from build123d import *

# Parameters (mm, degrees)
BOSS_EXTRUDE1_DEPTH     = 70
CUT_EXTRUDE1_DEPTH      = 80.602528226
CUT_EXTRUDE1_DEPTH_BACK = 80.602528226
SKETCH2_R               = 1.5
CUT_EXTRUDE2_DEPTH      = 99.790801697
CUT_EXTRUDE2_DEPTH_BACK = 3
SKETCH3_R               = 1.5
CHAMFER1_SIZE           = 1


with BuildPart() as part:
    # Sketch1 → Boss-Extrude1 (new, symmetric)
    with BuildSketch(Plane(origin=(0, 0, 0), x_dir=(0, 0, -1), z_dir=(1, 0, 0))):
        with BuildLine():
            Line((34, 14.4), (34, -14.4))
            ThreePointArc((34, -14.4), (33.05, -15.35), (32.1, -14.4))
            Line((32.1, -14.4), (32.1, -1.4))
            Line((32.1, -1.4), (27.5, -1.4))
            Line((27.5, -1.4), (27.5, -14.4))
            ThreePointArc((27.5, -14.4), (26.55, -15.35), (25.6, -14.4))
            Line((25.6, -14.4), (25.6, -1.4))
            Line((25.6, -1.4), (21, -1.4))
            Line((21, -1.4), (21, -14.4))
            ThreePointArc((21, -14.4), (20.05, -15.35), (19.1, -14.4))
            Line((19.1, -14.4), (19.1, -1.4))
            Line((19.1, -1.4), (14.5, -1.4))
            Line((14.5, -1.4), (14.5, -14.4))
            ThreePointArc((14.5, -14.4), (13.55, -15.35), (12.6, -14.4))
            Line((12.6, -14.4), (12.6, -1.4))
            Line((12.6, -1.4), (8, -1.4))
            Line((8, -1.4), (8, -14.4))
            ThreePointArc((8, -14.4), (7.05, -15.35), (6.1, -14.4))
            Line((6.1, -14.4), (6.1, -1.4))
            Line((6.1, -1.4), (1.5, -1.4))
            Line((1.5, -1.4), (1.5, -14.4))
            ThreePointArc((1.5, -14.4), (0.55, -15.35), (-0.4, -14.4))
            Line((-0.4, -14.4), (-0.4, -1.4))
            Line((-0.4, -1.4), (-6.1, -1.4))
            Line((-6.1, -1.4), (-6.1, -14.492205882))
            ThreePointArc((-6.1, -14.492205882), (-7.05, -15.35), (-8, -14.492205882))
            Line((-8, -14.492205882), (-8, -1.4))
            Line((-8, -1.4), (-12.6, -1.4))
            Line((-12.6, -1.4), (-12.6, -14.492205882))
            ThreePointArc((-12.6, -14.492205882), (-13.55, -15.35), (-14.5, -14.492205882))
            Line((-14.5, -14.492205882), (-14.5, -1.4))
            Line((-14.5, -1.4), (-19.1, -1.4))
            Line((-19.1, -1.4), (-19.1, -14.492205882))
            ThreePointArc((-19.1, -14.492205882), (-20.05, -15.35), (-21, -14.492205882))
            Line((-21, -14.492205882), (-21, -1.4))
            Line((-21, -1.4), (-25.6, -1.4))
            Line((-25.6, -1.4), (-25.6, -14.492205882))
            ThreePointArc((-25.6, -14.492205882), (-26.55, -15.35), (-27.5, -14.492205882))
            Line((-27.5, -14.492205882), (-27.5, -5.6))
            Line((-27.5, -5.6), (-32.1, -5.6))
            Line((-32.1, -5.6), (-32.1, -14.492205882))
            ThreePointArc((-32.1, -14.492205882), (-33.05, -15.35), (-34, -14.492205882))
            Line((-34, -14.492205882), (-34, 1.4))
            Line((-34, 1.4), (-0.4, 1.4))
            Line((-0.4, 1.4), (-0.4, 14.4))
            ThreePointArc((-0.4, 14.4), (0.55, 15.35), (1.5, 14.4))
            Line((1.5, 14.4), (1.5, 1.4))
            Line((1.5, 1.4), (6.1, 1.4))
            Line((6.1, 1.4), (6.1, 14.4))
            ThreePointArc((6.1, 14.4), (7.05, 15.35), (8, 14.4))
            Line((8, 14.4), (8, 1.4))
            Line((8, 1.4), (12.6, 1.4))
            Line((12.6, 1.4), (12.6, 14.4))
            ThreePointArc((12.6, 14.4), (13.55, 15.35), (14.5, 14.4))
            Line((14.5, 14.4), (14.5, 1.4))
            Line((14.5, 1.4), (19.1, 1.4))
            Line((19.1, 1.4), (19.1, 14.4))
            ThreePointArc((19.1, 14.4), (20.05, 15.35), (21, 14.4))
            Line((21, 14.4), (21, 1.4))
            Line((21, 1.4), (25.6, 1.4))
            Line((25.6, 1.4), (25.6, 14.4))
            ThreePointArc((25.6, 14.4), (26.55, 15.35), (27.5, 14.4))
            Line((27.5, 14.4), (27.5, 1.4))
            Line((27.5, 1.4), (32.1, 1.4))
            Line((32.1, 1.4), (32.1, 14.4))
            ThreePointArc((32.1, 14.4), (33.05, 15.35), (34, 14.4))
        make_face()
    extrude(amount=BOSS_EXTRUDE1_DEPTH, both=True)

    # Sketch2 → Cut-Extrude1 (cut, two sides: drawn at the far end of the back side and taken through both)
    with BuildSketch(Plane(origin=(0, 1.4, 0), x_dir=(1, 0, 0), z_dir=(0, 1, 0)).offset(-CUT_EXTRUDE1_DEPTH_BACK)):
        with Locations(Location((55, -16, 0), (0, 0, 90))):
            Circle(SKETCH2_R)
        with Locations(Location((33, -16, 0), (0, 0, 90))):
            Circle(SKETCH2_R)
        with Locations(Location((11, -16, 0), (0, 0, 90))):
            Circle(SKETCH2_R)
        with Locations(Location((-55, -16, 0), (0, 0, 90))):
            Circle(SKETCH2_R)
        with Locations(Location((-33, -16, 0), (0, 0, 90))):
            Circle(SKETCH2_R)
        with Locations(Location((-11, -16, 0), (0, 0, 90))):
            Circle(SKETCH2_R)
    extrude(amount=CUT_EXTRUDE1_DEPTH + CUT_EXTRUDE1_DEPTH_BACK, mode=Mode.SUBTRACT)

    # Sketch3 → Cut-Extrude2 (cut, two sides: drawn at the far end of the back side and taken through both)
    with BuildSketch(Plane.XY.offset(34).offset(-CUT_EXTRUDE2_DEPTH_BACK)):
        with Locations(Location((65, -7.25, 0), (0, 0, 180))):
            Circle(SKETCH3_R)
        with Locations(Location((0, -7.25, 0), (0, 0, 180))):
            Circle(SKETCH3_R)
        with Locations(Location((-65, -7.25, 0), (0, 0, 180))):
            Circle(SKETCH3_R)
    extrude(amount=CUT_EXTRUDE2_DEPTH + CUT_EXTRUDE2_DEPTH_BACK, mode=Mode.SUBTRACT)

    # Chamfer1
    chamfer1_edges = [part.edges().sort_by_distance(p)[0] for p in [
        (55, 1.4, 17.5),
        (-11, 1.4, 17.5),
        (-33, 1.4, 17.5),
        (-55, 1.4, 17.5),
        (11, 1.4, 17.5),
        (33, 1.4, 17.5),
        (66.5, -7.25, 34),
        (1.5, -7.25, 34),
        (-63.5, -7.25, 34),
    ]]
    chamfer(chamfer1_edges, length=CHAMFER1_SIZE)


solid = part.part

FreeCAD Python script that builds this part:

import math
import FreeCAD as App
import Part
import Sketcher
from FreeCAD import Vector
Q = App.Units.Quantity


def edges_at(feature, points):
    """Names of the edges that pass closest to the given points."""
    edges = feature.Shape.Edges
    near = lambda p: min(range(len(edges)), key=lambda i: edges[i].distToShape(Part.Vertex(*p))[0])
    return sorted({f"Edge{near(p) + 1}" for p in points})

doc = App.newDocument("Part")
body = doc.addObject("PartDesign::Body", "Body")

sketch1 = doc.addObject("Sketcher::SketchObject", "Sketch")
body.addObject(sketch1)
sketch1.AttachmentSupport = (doc.YZ_Plane, [""])
sketch1.MapMode = "FlatFace"
sketch1.addGeometry(Part.LineSegment(Vector(-14.4, -34, 0), Vector(14.4, -34, 0)), False)
sketch1.addGeometry(Part.ArcOfCircle(Part.Circle(Vector(14.4, -33, 0), Vector(0, 0, 1), 0.9), math.radians(-90), math.radians(90)), False)
sketch1.addGeometry(Part.LineSegment(Vector(14.4, -32.1, 0), Vector(1.4, -32.1, 0)), False)
sketch1.addGeometry(Part.LineSegment(Vector(1.4, -32.1, 0), Vector(1.4, -27.5, 0)), False)
sketch1.addGeometry(Part.LineSegment(Vector(1.4, -27.5, 0), Vector(14.4, -27.5, 0)), False)
sketch1.addGeometry(Part.ArcOfCircle(Part.Circle(Vector(14.4, -26.6, 0), Vector(0, 0, 1), 0.9), math.radians(-90), math.radians(90)), False)
sketch1.addGeometry(Part.LineSegment(Vector(14.4, -25.6, 0), Vector(1.4, -25.6, 0)), False)
sketch1.addGeometry(Part.LineSegment(Vector(1.4, -25.6, 0), Vector(1.4, -21, 0)), False)
sketch1.addGeometry(Part.LineSegment(Vector(1.4, -21, 0), Vector(14.4, -21, 0)), False)
sketch1.addGeometry(Part.ArcOfCircle(Part.Circle(Vector(14.4, -20.1, 0), Vector(0, 0, 1), 0.9), math.radians(-90), math.radians(90)), False)
sketch1.addGeometry(Part.LineSegment(Vector(14.4, -19.1, 0), Vector(1.4, -19.1, 0)), False)
sketch1.addGeometry(Part.LineSegment(Vector(1.4, -19.1, 0), Vector(1.4, -14.5, 0)), False)
sketch1.addGeometry(Part.LineSegment(Vector(1.4, -14.5, 0), Vector(14.4, -14.5, 0)), False)
sketch1.addGeometry(Part.ArcOfCircle(Part.Circle(Vector(14.4, -13.6, 0), Vector(0, 0, 1), 0.9), math.radians(-90), math.radians(90)), False)
sketch1.addGeometry(Part.LineSegment(Vector(14.4, -12.6, 0), Vector(1.4, -12.6, 0)), False)
sketch1.addGeometry(Part.LineSegment(Vector(1.4, -12.6, 0), Vector(1.4, -8, 0)), False)
sketch1.addGeometry(Part.LineSegment(Vector(1.4, -8, 0), Vector(14.4, -8, 0)), False)
sketch1.addGeometry(Part.ArcOfCircle(Part.Circle(Vector(14.4, -7, 0), Vector(0, 0, 1), 0.9), math.radians(-90), math.radians(90)), False)
sketch1.addGeometry(Part.LineSegment(Vector(14.4, -6.1, 0), Vector(1.4, -6.1, 0)), False)
sketch1.addGeometry(Part.LineSegment(Vector(1.4, -6.1, 0), Vector(1.4, -1.5, 0)), False)
sketch1.addGeometry(Part.LineSegment(Vector(1.4, -1.5, 0), Vector(14.4, -1.5, 0)), False)
sketch1.addGeometry(Part.ArcOfCircle(Part.Circle(Vector(14.4, -0.6, 0), Vector(0, 0, 1), 0.9), math.radians(-90), math.radians(90)), False)
sketch1.addGeometry(Part.LineSegment(Vector(14.4, 0.4, 0), Vector(1.4, 0.4, 0)), False)
sketch1.addGeometry(Part.LineSegment(Vector(1.4, 0.4, 0), Vector(1.4, 34, 0)), False)
sketch1.addGeometry(Part.LineSegment(Vector(1.4, 34, 0), Vector(-14.5, 34, 0)), False)
sketch1.addGeometry(Part.ArcOfCircle(Part.Circle(Vector(-14.4, 33, 0), Vector(0, 0, 1), 1), math.radians(96), math.radians(264)), False)
sketch1.addGeometry(Part.LineSegment(Vector(-14.5, 32.1, 0), Vector(-5.6, 32.1, 0)), False)
sketch1.addGeometry(Part.LineSegment(Vector(-5.6, 32.1, 0), Vector(-5.6, 27.5, 0)), False)
sketch1.addGeometry(Part.LineSegment(Vector(-5.6, 27.5, 0), Vector(-14.5, 27.5, 0)), False)
sketch1.addGeometry(Part.ArcOfCircle(Part.Circle(Vector(-14.4, 26.6, 0), Vector(0, 0, 1), 1), math.radians(96), math.radians(264)), False)
sketch1.addGeometry(Part.LineSegment(Vector(-14.5, 25.6, 0), Vector(-1.4, 25.6, 0)), False)
sketch1.addGeometry(Part.LineSegment(Vector(-1.4, 25.6, 0), Vector(-1.4, 21, 0)), False)
sketch1.addGeometry(Part.LineSegment(Vector(-1.4, 21, 0), Vector(-14.5, 21, 0)), False)
sketch1.addGeometry(Part.ArcOfCircle(Part.Circle(Vector(-14.4, 20.1, 0), Vector(0, 0, 1), 1), math.radians(96), math.radians(264)), False)
sketch1.addGeometry(Part.LineSegment(Vector(-14.5, 19.1, 0), Vector(-1.4, 19.1, 0)), False)
sketch1.addGeometry(Part.LineSegment(Vector(-1.4, 19.1, 0), Vector(-1.4, 14.5, 0)), False)
sketch1.addGeometry(Part.LineSegment(Vector(-1.4, 14.5, 0), Vector(-14.5, 14.5, 0)), False)
sketch1.addGeometry(Part.ArcOfCircle(Part.Circle(Vector(-14.4, 13.6, 0), Vector(0, 0, 1), 1), math.radians(96), math.radians(264)), False)
sketch1.addGeometry(Part.LineSegment(Vector(-14.5, 12.6, 0), Vector(-1.4, 12.6, 0)), False)
sketch1.addGeometry(Part.LineSegment(Vector(-1.4, 12.6, 0), Vector(-1.4, 8, 0)), False)
sketch1.addGeometry(Part.LineSegment(Vector(-1.4, 8, 0), Vector(-14.5, 8, 0)), False)
sketch1.addGeometry(Part.ArcOfCircle(Part.Circle(Vector(-14.4, 7, 0), Vector(0, 0, 1), 1), math.radians(96), math.radians(264)), False)
sketch1.addGeometry(Part.LineSegment(Vector(-14.5, 6.1, 0), Vector(-1.4, 6.1, 0)), False)
sketch1.addGeometry(Part.LineSegment(Vector(-1.4, 6.1, 0), Vector(-1.4, 0.4, 0)), False)
sketch1.addGeometry(Part.LineSegment(Vector(-1.4, 0.4, 0), Vector(-14.4, 0.4, 0)), False)
sketch1.addGeometry(Part.ArcOfCircle(Part.Circle(Vector(-14.4, -0.6, 0), Vector(0, 0, 1), 0.9), math.radians(90), math.radians(270)), False)
sketch1.addGeometry(Part.LineSegment(Vector(-14.4, -1.5, 0), Vector(-1.4, -1.5, 0)), False)
sketch1.addGeometry(Part.LineSegment(Vector(-1.4, -1.5, 0), Vector(-1.4, -6.1, 0)), False)
sketch1.addGeometry(Part.LineSegment(Vector(-1.4, -6.1, 0), Vector(-14.4, -6.1, 0)), False)
sketch1.addGeometry(Part.ArcOfCircle(Part.Circle(Vector(-14.4, -7, 0), Vector(0, 0, 1), 0.9), math.radians(90), math.radians(270)), False)
sketch1.addGeometry(Part.LineSegment(Vector(-14.4, -8, 0), Vector(-1.4, -8, 0)), False)
sketch1.addGeometry(Part.LineSegment(Vector(-1.4, -8, 0), Vector(-1.4, -12.6, 0)), False)
sketch1.addGeometry(Part.LineSegment(Vector(-1.4, -12.6, 0), Vector(-14.4, -12.6, 0)), False)
sketch1.addGeometry(Part.ArcOfCircle(Part.Circle(Vector(-14.4, -13.6, 0), Vector(0, 0, 1), 0.9), math.radians(90), math.radians(270)), False)
sketch1.addGeometry(Part.LineSegment(Vector(-14.4, -14.5, 0), Vector(-1.4, -14.5, 0)), False)
sketch1.addGeometry(Part.LineSegment(Vector(-1.4, -14.5, 0), Vector(-1.4, -19.1, 0)), False)
sketch1.addGeometry(Part.LineSegment(Vector(-1.4, -19.1, 0), Vector(-14.4, -19.1, 0)), False)
sketch1.addGeometry(Part.ArcOfCircle(Part.Circle(Vector(-14.4, -20.1, 0), Vector(0, 0, 1), 0.9), math.radians(90), math.radians(270)), False)
sketch1.addGeometry(Part.LineSegment(Vector(-14.4, -21, 0), Vector(-1.4, -21, 0)), False)
sketch1.addGeometry(Part.LineSegment(Vector(-1.4, -21, 0), Vector(-1.4, -25.6, 0)), False)
sketch1.addGeometry(Part.LineSegment(Vector(-1.4, -25.6, 0), Vector(-14.4, -25.6, 0)), False)
sketch1.addGeometry(Part.ArcOfCircle(Part.Circle(Vector(-14.4, -26.6, 0), Vector(0, 0, 1), 0.9), math.radians(90), math.radians(270)), False)
sketch1.addGeometry(Part.LineSegment(Vector(-14.4, -27.5, 0), Vector(-1.4, -27.5, 0)), False)
sketch1.addGeometry(Part.LineSegment(Vector(-1.4, -27.5, 0), Vector(-1.4, -32.1, 0)), False)
sketch1.addGeometry(Part.LineSegment(Vector(-1.4, -32.1, 0), Vector(-14.4, -32.1, 0)), False)
sketch1.addGeometry(Part.ArcOfCircle(Part.Circle(Vector(-14.4, -33, 0), Vector(0, 0, 1), 0.9), math.radians(90), math.radians(270)), False)
sketch1.addConstraint(Sketcher.Constraint("Tangent", 0, 2, 1, 1))
sketch1.addConstraint(Sketcher.Constraint("Tangent", 1, 2, 2, 1))
sketch1.addConstraint(Sketcher.Constraint("Coincident", 2, 2, 3, 1))
sketch1.addConstraint(Sketcher.Constraint("Coincident", 3, 2, 4, 1))
sketch1.addConstraint(Sketcher.Constraint("Tangent", 4, 2, 5, 1))
sketch1.addConstraint(Sketcher.Constraint("Tangent", 5, 2, 6, 1))
sketch1.addConstraint(Sketcher.Constraint("Coincident", 6, 2, 7, 1))
sketch1.addConstraint(Sketcher.Constraint("Coincident", 7, 2, 8, 1))
sketch1.addConstraint(Sketcher.Constraint("Tangent", 8, 2, 9, 1))
sketch1.addConstraint(Sketcher.Constraint("Tangent", 9, 2, 10, 1))
sketch1.addConstraint(Sketcher.Constraint("Coincident", 10, 2, 11, 1))
sketch1.addConstraint(Sketcher.Constraint("Coincident", 11, 2, 12, 1))
sketch1.addConstraint(Sketcher.Constraint("Tangent", 12, 2, 13, 1))
sketch1.addConstraint(Sketcher.Constraint("Tangent", 13, 2, 14, 1))
sketch1.addConstraint(Sketcher.Constraint("Coincident", 14, 2, 15, 1))
sketch1.addConstraint(Sketcher.Constraint("Coincident", 15, 2, 16, 1))
sketch1.addConstraint(Sketcher.Constraint("Tangent", 16, 2, 17, 1))
sketch1.addConstraint(Sketcher.Constraint("Tangent", 17, 2, 18, 1))
sketch1.addConstraint(Sketcher.Constraint("Coincident", 18, 2, 19, 1))
sketch1.addConstraint(Sketcher.Constraint("Coincident", 19, 2, 20, 1))
sketch1.addConstraint(Sketcher.Constraint("Tangent", 20, 2, 21, 1))
sketch1.addConstraint(Sketcher.Constraint("Tangent", 21, 2, 22, 1))
sketch1.addConstraint(Sketcher.Constraint("Coincident", 22, 2, 23, 1))
sketch1.addConstraint(Sketcher.Constraint("Coincident", 23, 2, 24, 1))
sketch1.addConstraint(Sketcher.Constraint("Coincident", 24, 2, 25, 1))
sketch1.addConstraint(Sketcher.Constraint("Coincident", 25, 2, 26, 1))
sketch1.addConstraint(Sketcher.Constraint("Coincident", 26, 2, 27, 1))
sketch1.addConstraint(Sketcher.Constraint("Coincident", 27, 2, 28, 1))
sketch1.addConstraint(Sketcher.Constraint("Coincident", 28, 2, 29, 1))
sketch1.addConstraint(Sketcher.Constraint("Coincident", 29, 2, 30, 1))
sketch1.addConstraint(Sketcher.Constraint("Coincident", 30, 2, 31, 1))
sketch1.addConstraint(Sketcher.Constraint("Coincident", 31, 2, 32, 1))
sketch1.addConstraint(Sketcher.Constraint("Coincident", 32, 2, 33, 1))
sketch1.addConstraint(Sketcher.Constraint("Coincident", 33, 2, 34, 1))
sketch1.addConstraint(Sketcher.Constraint("Coincident", 34, 2, 35, 1))
sketch1.addConstraint(Sketcher.Constraint("Coincident", 35, 2, 36, 1))
sketch1.addConstraint(Sketcher.Constraint("Coincident", 36, 2, 37, 1))
sketch1.addConstraint(Sketcher.Constraint("Coincident", 37, 2, 38, 1))
sketch1.addConstraint(Sketcher.Constraint("Coincident", 38, 2, 39, 1))
sketch1.addConstraint(Sketcher.Constraint("Coincident", 39, 2, 40, 1))
sketch1.addConstraint(Sketcher.Constraint("Coincident", 40, 2, 41, 1))
sketch1.addConstraint(Sketcher.Constraint("Coincident", 41, 2, 42, 1))
sketch1.addConstraint(Sketcher.Constraint("Coincident", 42, 2, 43, 1))
sketch1.addConstraint(Sketcher.Constraint("Coincident", 43, 2, 44, 1))
sketch1.addConstraint(Sketcher.Constraint("Tangent", 44, 2, 45, 1))
sketch1.addConstraint(Sketcher.Constraint("Tangent", 45, 2, 46, 1))
sketch1.addConstraint(Sketcher.Constraint("Coincident", 46, 2, 47, 1))
sketch1.addConstraint(Sketcher.Constraint("Coincident", 47, 2, 48, 1))
sketch1.addConstraint(Sketcher.Constraint("Tangent", 48, 2, 49, 1))
sketch1.addConstraint(Sketcher.Constraint("Tangent", 49, 2, 50, 1))
sketch1.addConstraint(Sketcher.Constraint("Coincident", 50, 2, 51, 1))
sketch1.addConstraint(Sketcher.Constraint("Coincident", 51, 2, 52, 1))
sketch1.addConstraint(Sketcher.Constraint("Tangent", 52, 2, 53, 1))
sketch1.addConstraint(Sketcher.Constraint("Tangent", 53, 2, 54, 1))
sketch1.addConstraint(Sketcher.Constraint("Coincident", 54, 2, 55, 1))
sketch1.addConstraint(Sketcher.Constraint("Coincident", 55, 2, 56, 1))
sketch1.addConstraint(Sketcher.Constraint("Tangent", 56, 2, 57, 1))
sketch1.addConstraint(Sketcher.Constraint("Tangent", 57, 2, 58, 1))
sketch1.addConstraint(Sketcher.Constraint("Coincident", 58, 2, 59, 1))
sketch1.addConstraint(Sketcher.Constraint("Coincident", 59, 2, 60, 1))
sketch1.addConstraint(Sketcher.Constraint("Tangent", 60, 2, 61, 1))
sketch1.addConstraint(Sketcher.Constraint("Tangent", 61, 2, 62, 1))
sketch1.addConstraint(Sketcher.Constraint("Coincident", 62, 2, 63, 1))
sketch1.addConstraint(Sketcher.Constraint("Coincident", 63, 2, 64, 1))
sketch1.addConstraint(Sketcher.Constraint("Tangent", 64, 2, 65, 1))
sketch1.addConstraint(Sketcher.Constraint("Tangent", 65, 2, 0, 1))
sketch1.addConstraint(Sketcher.Constraint("Horizontal", 0))
sketch1.addConstraint(Sketcher.Constraint("Horizontal", 2))
sketch1.addConstraint(Sketcher.Constraint("Vertical", 3))
sketch1.addConstraint(Sketcher.Constraint("Horizontal", 4))
sketch1.addConstraint(Sketcher.Constraint("Horizontal", 6))
sketch1.addConstraint(Sketcher.Constraint("Vertical", 7))
sketch1.addConstraint(Sketcher.Constraint("Horizontal", 8))
sketch1.addConstraint(Sketcher.Constraint("Horizontal", 10))
sketch1.addConstraint(Sketcher.Constraint("Vertical", 11))
sketch1.addConstraint(Sketcher.Constraint("Horizontal", 12))
sketch1.addConstraint(Sketcher.Constraint("Horizontal", 14))
sketch1.addConstraint(Sketcher.Constraint("Vertical", 15))
sketch1.addConstraint(Sketcher.Constraint("Horizontal", 16))
sketch1.addConstraint(Sketcher.Constraint("Horizontal", 18))
sketch1.addConstraint(Sketcher.Constraint("Vertical", 19))
sketch1.addConstraint(Sketcher.Constraint("Horizontal", 20))
sketch1.addConstraint(Sketcher.Constraint("Horizontal", 22))
sketch1.addConstraint(Sketcher.Constraint("Vertical", 23))
sketch1.addConstraint(Sketcher.Constraint("Horizontal", 24))
sketch1.addConstraint(Sketcher.Constraint("Horizontal", 26))
sketch1.addConstraint(Sketcher.Constraint("Vertical", 27))
sketch1.addConstraint(Sketcher.Constraint("Horizontal", 28))
sketch1.addConstraint(Sketcher.Constraint("Horizontal", 30))
sketch1.addConstraint(Sketcher.Constraint("Vertical", 31))
sketch1.addConstraint(Sketcher.Constraint("Horizontal", 32))
sketch1.addConstraint(Sketcher.Constraint("Horizontal", 34))
sketch1.addConstraint(Sketcher.Constraint("Vertical", 35))
sketch1.addConstraint(Sketcher.Constraint("Horizontal", 36))
sketch1.addConstraint(Sketcher.Constraint("Horizontal", 38))
sketch1.addConstraint(Sketcher.Constraint("Vertical", 39))
sketch1.addConstraint(Sketcher.Constraint("Horizontal", 40))
sketch1.addConstraint(Sketcher.Constraint("Horizontal", 42))
sketch1.addConstraint(Sketcher.Constraint("Vertical", 43))
sketch1.addConstraint(Sketcher.Constraint("Horizontal", 44))
sketch1.addConstraint(Sketcher.Constraint("Horizontal", 46))
sketch1.addConstraint(Sketcher.Constraint("Vertical", 47))
sketch1.addConstraint(Sketcher.Constraint("Horizontal", 48))
sketch1.addConstraint(Sketcher.Constraint("Horizontal", 50))
sketch1.addConstraint(Sketcher.Constraint("Vertical", 51))
sketch1.addConstraint(Sketcher.Constraint("Horizontal", 52))
sketch1.addConstraint(Sketcher.Constraint("Horizontal", 54))
sketch1.addConstraint(Sketcher.Constraint("Vertical", 55))
sketch1.addConstraint(Sketcher.Constraint("Horizontal", 56))
sketch1.addConstraint(Sketcher.Constraint("Horizontal", 58))
sketch1.addConstraint(Sketcher.Constraint("Vertical", 59))
sketch1.addConstraint(Sketcher.Constraint("Horizontal", 60))
sketch1.addConstraint(Sketcher.Constraint("Horizontal", 62))
sketch1.addConstraint(Sketcher.Constraint("Vertical", 63))
sketch1.addConstraint(Sketcher.Constraint("Horizontal", 64))
sketch1.addConstraint(Sketcher.Constraint("Equal", 1, 5))
sketch1.addConstraint(Sketcher.Constraint("Equal", 5, 9))
sketch1.addConstraint(Sketcher.Constraint("Equal", 9, 13))
sketch1.addConstraint(Sketcher.Constraint("Equal", 13, 17))
sketch1.addConstraint(Sketcher.Constraint("Equal", 17, 21))
sketch1.addConstraint(Sketcher.Constraint("Equal", 25, 29))
sketch1.addConstraint(Sketcher.Constraint("Equal", 29, 33))
sketch1.addConstraint(Sketcher.Constraint("Equal", 33, 37))
sketch1.addConstraint(Sketcher.Constraint("Equal", 37, 41))
sketch1.addConstraint(Sketcher.Constraint("Equal", 21, 45))
sketch1.addConstraint(Sketcher.Constraint("Equal", 45, 49))
sketch1.addConstraint(Sketcher.Constraint("Equal", 49, 53))
sketch1.addConstraint(Sketcher.Constraint("Equal", 53, 57))
sketch1.addConstraint(Sketcher.Constraint("Equal", 57, 61))
sketch1.addConstraint(Sketcher.Constraint("Equal", 61, 65))
sketch1.addConstraint(Sketcher.Constraint("Symmetric", 6, 2, 30, 2, -1, 1))
sketch1.addConstraint(Sketcher.Constraint("Symmetric", 10, 2, 34, 2, -1, 1))
sketch1.addConstraint(Sketcher.Constraint("Symmetric", 14, 2, 38, 2, -1, 1))
sketch1.addConstraint(Sketcher.Constraint("Symmetric", 18, 2, 42, 2, -1, 1))
sketch1.addConstraint(Sketcher.Constraint("Symmetric", 21, 3, 45, 3, -2))
sketch1.addConstraint(Sketcher.Constraint("Symmetric", 17, 3, 49, 3, -2))
sketch1.addConstraint(Sketcher.Constraint("Symmetric", 13, 3, 53, 3, -2))
sketch1.addConstraint(Sketcher.Constraint("Symmetric", 9, 3, 57, 3, -2))
sketch1.addConstraint(Sketcher.Constraint("Symmetric", 5, 3, 61, 3, -2))
sketch1.addConstraint(Sketcher.Constraint("Symmetric", 39, 2, 50, 2, -1))
sketch1.addConstraint(Sketcher.Constraint("Symmetric", 35, 2, 54, 2, -1))
sketch1.addConstraint(Sketcher.Constraint("Symmetric", 31, 2, 58, 2, -1))
sketch1.addConstraint(Sketcher.Constraint("Vertical", 1, 3, 5, 3))
sketch1.addConstraint(Sketcher.Constraint("Vertical", 5, 3, 9, 3))
sketch1.addConstraint(Sketcher.Constraint("Vertical", 9, 3, 13, 3))
sketch1.addConstraint(Sketcher.Constraint("Vertical", 13, 3, 17, 3))
sketch1.addConstraint(Sketcher.Constraint("Vertical", 17, 3, 21, 3))
sketch1.addConstraint(Sketcher.Constraint("Vertical", 25, 3, 29, 3))
sketch1.addConstraint(Sketcher.Constraint("Vertical", 29, 3, 33, 3))
sketch1.addConstraint(Sketcher.Constraint("Vertical", 33, 3, 37, 3))
sketch1.addConstraint(Sketcher.Constraint("Vertical", 37, 3, 41, 3))
sketch1.addConstraint(Sketcher.Constraint("Vertical", 61, 3, 65, 3))
sketch1.addConstraint(Sketcher.Constraint("Vertical", 3, 2, 6, 2))
sketch1.addConstraint(Sketcher.Constraint("Vertical", 7, 2, 10, 2))
sketch1.addConstraint(Sketcher.Constraint("Vertical", 11, 2, 14, 2))
sketch1.addConstraint(Sketcher.Constraint("Vertical", 15, 2, 18, 2))
sketch1.addConstraint(Sketcher.Constraint("Vertical", 19, 2, 22, 2))
sketch1.addConstraint(Sketcher.Constraint("Vertical", 24, 2, 25, 2))
sketch1.addConstraint(Sketcher.Constraint("Vertical", 25, 2, 28, 2))
sketch1.addConstraint(Sketcher.Constraint("Vertical", 28, 2, 29, 2))
sketch1.addConstraint(Sketcher.Constraint("Vertical", 29, 2, 32, 2))
sketch1.addConstraint(Sketcher.Constraint("Vertical", 32, 2, 33, 2))
sketch1.addConstraint(Sketcher.Constraint("Vertical", 33, 2, 36, 2))
sketch1.addConstraint(Sketcher.Constraint("Vertical", 37, 2, 40, 2))
sketch1.addConstraint(Sketcher.Constraint("Vertical", 43, 2, 46, 2))
sketch1.addConstraint(Sketcher.Constraint("Vertical", 59, 2, 62, 2))
sketch1.addConstraint(Sketcher.Constraint("Equal", 3, 7))
sketch1.addConstraint(Sketcher.Constraint("Equal", 7, 11))
sketch1.addConstraint(Sketcher.Constraint("Equal", 11, 15))
sketch1.addConstraint(Sketcher.Constraint("Equal", 15, 19))
sketch1.addConstraint(Sketcher.Constraint("Equal", 19, 27))
sketch1.addConstraint(Sketcher.Constraint("DistanceX", 2, 2, 2, 1, Q("13 mm")))
sketch1.addConstraint(Sketcher.Constraint("Radius", 1, Q("0.95 mm")))
sketch1.addConstraint(Sketcher.Constraint("DistanceX", 0, 1, 0, 2, Q("28.8 mm")))
sketch1.addConstraint(Sketcher.Constraint("DistanceY", 3, 1, 3, 2, Q("4.6 mm")))
sketch1.addConstraint(Sketcher.Constraint("DistanceY", 23, 1, 23, 2, Q("33.6 mm")))
sketch1.addConstraint(Sketcher.Constraint("DistanceX", 26, 2, -1, 1, Q("5.6 mm")))
sketch1.addConstraint(Sketcher.Constraint("Radius", 25, Q("0.954956 mm")))
sketch1.addConstraint(Sketcher.Constraint("DistanceX", 24, 2, 24, 1, Q("15.892206 mm")))
pad1 = doc.addObject("PartDesign::Pad", "Pad")
body.addObject(pad1)
pad1.Profile = sketch1
pad1.Length = 140
pad1.Midplane = True

sketch2 = doc.addObject("Sketcher::SketchObject", "Sketch001")
body.addObject(sketch2)
sketch2.AttachmentSupport = (doc.XZ_Plane, [""])
sketch2.MapMode = "FlatFace"
sketch2.AttachmentOffset = App.Placement(Vector(0, 0, -1.4), App.Rotation())
sketch2.addGeometry(Part.Circle(Vector(55, 16, 0), Vector(0, 0, 1), 1.5), False)
sketch2.addGeometry(Part.Circle(Vector(33, 16, 0), Vector(0, 0, 1), 1.5), False)
sketch2.addGeometry(Part.Circle(Vector(11, 16, 0), Vector(0, 0, 1), 1.5), False)
sketch2.addGeometry(Part.Circle(Vector(-55, 16, 0), Vector(0, 0, 1), 1.5), False)
sketch2.addGeometry(Part.Circle(Vector(-33, 16, 0), Vector(0, 0, 1), 1.5), False)
sketch2.addGeometry(Part.Circle(Vector(-11, 16, 0), Vector(0, 0, 1), 1.5), False)
sketch2.addConstraint(Sketcher.Constraint("Equal", 0, 1))
sketch2.addConstraint(Sketcher.Constraint("Equal", 1, 2))
sketch2.addConstraint(Sketcher.Constraint("Equal", 2, 3))
sketch2.addConstraint(Sketcher.Constraint("Equal", 3, 4))
sketch2.addConstraint(Sketcher.Constraint("Equal", 4, 5))
sketch2.addConstraint(Sketcher.Constraint("Symmetric", 0, 3, 3, 3, -2))
sketch2.addConstraint(Sketcher.Constraint("Symmetric", 1, 3, 4, 3, -2))
sketch2.addConstraint(Sketcher.Constraint("Symmetric", 2, 3, 5, 3, -2))
sketch2.addConstraint(Sketcher.Constraint("Horizontal", 0, 3, 1, 3))
sketch2.addConstraint(Sketcher.Constraint("Horizontal", 1, 3, 2, 3))
sketch2.addConstraint(Sketcher.Constraint("Diameter", 0, Q("3 mm")))
sketch2.addConstraint(Sketcher.Constraint("DistanceX", -1, 1, 0, 3, Q("55 mm")))
sketch2.addConstraint(Sketcher.Constraint("DistanceY", -1, 1, 0, 3, Q("16 mm")))
sketch2.addConstraint(Sketcher.Constraint("DistanceX", -1, 1, 1, 3, Q("33 mm")))
sketch2.addConstraint(Sketcher.Constraint("DistanceX", -1, 1, 2, 3, Q("11 mm")))
pocket1 = doc.addObject("PartDesign::Pocket", "Pocket")
body.addObject(pocket1)
pocket1.Profile = sketch2
pocket1.Type = "ThroughAll"
pocket1.Midplane = True

sketch3 = doc.addObject("Sketcher::SketchObject", "Sketch002")
body.addObject(sketch3)
sketch3.AttachmentSupport = (doc.XY_Plane, [""])
sketch3.MapMode = "FlatFace"
sketch3.AttachmentOffset = App.Placement(Vector(0, 0, 34), App.Rotation())
sketch3.addGeometry(Part.Circle(Vector(65, -7.2, 0), Vector(0, 0, 1), 1.5), False)
sketch3.addGeometry(Part.Circle(Vector(0, -7.2, 0), Vector(0, 0, 1), 1.5), False)
sketch3.addGeometry(Part.Circle(Vector(-65, -7.2, 0), Vector(0, 0, 1), 1.5), False)
sketch3.addConstraint(Sketcher.Constraint("Equal", 0, 1))
sketch3.addConstraint(Sketcher.Constraint("Equal", 1, 2))
sketch3.addConstraint(Sketcher.Constraint("Symmetric", 0, 3, 2, 3, -2))
sketch3.addConstraint(Sketcher.Constraint("PointOnObject", 1, 3, -2))
sketch3.addConstraint(Sketcher.Constraint("Horizontal", 0, 3, 1, 3))
sketch3.addConstraint(Sketcher.Constraint("Diameter", 0, Q("3 mm")))
sketch3.addConstraint(Sketcher.Constraint("DistanceX", -1, 1, 0, 3, Q("65 mm")))
sketch3.addConstraint(Sketcher.Constraint("DistanceY", 0, 3, -1, 1, Q("7.25 mm")))
pocket2 = doc.addObject("PartDesign::Pocket", "Pocket001")
body.addObject(pocket2)
pocket2.Profile = sketch3
pocket2.Type = "TwoLengths"
pocket2.Length = 99.790802
pocket2.Length2 = 3
pocket2.Reversed = True
doc.recompute()

chamfer = doc.addObject("PartDesign::Chamfer", "Chamfer")
body.addObject(chamfer)
chamfer.Base = (pocket2, edges_at(pocket2, [
    (55, 1.4, 17.5),
    (-11, 1.4, 17.5),
    (-33, 1.4, 17.5),
    (-55, 1.4, 17.5),
    (11, 1.4, 17.5),
    (33, 1.4, 17.5),
    (66.5, -7.25, 34),
    (1.5, -7.25, 34),
    (-63.5, -7.25, 34),
]))
chamfer.Size = 1

doc.recompute()
